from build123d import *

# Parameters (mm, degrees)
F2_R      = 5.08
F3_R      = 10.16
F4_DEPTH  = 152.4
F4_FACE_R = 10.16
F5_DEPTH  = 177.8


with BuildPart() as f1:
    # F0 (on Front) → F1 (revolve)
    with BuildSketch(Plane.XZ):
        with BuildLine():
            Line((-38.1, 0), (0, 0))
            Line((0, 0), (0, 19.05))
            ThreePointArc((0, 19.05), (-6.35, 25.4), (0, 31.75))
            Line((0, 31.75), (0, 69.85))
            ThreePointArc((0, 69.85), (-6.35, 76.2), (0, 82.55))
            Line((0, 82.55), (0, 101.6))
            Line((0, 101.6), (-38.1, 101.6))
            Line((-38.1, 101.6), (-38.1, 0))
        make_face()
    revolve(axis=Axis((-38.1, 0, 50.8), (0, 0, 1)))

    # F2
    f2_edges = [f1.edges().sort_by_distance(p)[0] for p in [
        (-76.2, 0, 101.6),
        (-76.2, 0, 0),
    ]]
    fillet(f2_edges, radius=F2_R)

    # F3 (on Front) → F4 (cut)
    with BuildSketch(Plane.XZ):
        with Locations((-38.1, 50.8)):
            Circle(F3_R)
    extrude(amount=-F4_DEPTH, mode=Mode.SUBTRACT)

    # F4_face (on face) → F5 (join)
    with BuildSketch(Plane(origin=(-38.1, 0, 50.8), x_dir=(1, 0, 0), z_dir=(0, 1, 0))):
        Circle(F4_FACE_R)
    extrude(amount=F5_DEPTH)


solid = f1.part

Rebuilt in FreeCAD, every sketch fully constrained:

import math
import FreeCAD as App
import Part
import Sketcher
from FreeCAD import Vector
Q = App.Units.Quantity


def edges_at(feature, points):
    """Names of the edges that pass closest to the given points."""
    edges = feature.Shape.Edges
    near = lambda p: min(range(len(edges)), key=lambda i: edges[i].distToShape(Part.Vertex(*p))[0])
    return sorted({f"Edge{near(p) + 1}" for p in points})

doc = App.newDocument("Part")
body = doc.addObject("PartDesign::Body", "Body")

sketch1 = doc.addObject("Sketcher::SketchObject", "Sketch")
body.addObject(sketch1)
sketch1.AttachmentSupport = (doc.XZ_Plane, [""])
sketch1.MapMode = "FlatFace"
sketch1.addGeometry(Part.LineSegment(Vector(-38, 0, 0), Vector(0, 0, 0)), False)
sketch1.addGeometry(Part.LineSegment(Vector(0, 0, 0), Vector(0, 19, 0)), False)
sketch1.addGeometry(Part.ArcOfCircle(Part.Circle(Vector(0, 25, 0), Vector(0, 0, 1), 6), math.radians(90), math.radians(270)), False)
sketch1.addGeometry(Part.LineSegment(Vector(0, 32, 0), Vector(0, 70, 0)), False)
sketch1.addGeometry(Part.ArcOfCircle(Part.Circle(Vector(0, 76, 0), Vector(0, 0, 1), 6), math.radians(90), math.radians(270)), False)
sketch1.addGeometry(Part.LineSegment(Vector(0, 83, 0), Vector(0, 102, 0)), False)
sketch1.addGeometry(Part.LineSegment(Vector(0, 102, 0), Vector(-38, 102, 0)), False)
sketch1.addGeometry(Part.LineSegment(Vector(-38, 102, 0), Vector(-38, 0, 0)), False)
sketch1.addGeometry(Part.LineSegment(Vector(-38, 0, 0), Vector(-38, 102, 0)), True)
sketch1.addConstraint(Sketcher.Constraint("Coincident", 0, 2, 1, 1))
sketch1.addConstraint(Sketcher.Constraint("Coincident", 1, 2, 2, 2))
sketch1.addConstraint(Sketcher.Constraint("Coincident", 2, 1, 3, 1))
sketch1.addConstraint(Sketcher.Constraint("Coincident", 3, 2, 4, 2))
sketch1.addConstraint(Sketcher.Constraint("Coincident", 4, 1, 5, 1))
sketch1.addConstraint(Sketcher.Constraint("Coincident", 5, 2, 6, 1))
sketch1.addConstraint(Sketcher.Constraint("Coincident", 6, 2, 7, 1))
sketch1.addConstraint(Sketcher.Constraint("Coincident", 7, 2, 0, 1))
sketch1.addConstraint(Sketcher.Constraint("Horizontal", 0))
sketch1.addConstraint(Sketcher.Constraint("Vertical", 1))
sketch1.addConstraint(Sketcher.Constraint("Vertical", 3))
sketch1.addConstraint(Sketcher.Constraint("Vertical", 5))
sketch1.addConstraint(Sketcher.Constraint("Horizontal", 6))
sketch1.addConstraint(Sketcher.Constraint("Vertical", 7))
sketch1.addConstraint(Sketcher.Constraint("Vertical", 8))
sketch1.addConstraint(Sketcher.Constraint("Coincident", 0, 2, -1, 1))
sketch1.addConstraint(Sketcher.Constraint("Coincident", 8, 1, 7, 2))
sketch1.addConstraint(Sketcher.Constraint("Equal", 2, 4))
sketch1.addConstraint(Sketcher.Constraint("PointOnObject", 2, 3, -2))
sketch1.addConstraint(Sketcher.Constraint("PointOnObject", 4, 3, -2))
sketch1.addConstraint(Sketcher.Constraint("PointOnObject", 2, 1, -2))
sketch1.addConstraint(Sketcher.Constraint("PointOnObject", 4, 1, -2))
sketch1.addConstraint(Sketcher.Constraint("Horizontal", 5, 2, 8, 2))
sketch1.addConstraint(Sketcher.Constraint("Equal", 6, 3))
sketch1.addConstraint(Sketcher.Constraint("Equal", 1, 5))
sketch1.addConstraint(Sketcher.Constraint("DistanceY", 7, 2, 7, 1, Q("4 in")))
sketch1.addConstraint(Sketcher.Constraint("Radius", 2, Q("0.25 in")))
sketch1.addConstraint(Sketcher.Constraint("DistanceX", 0, 1, 0, 2, Q("1.5 in")))
revolution = doc.addObject("PartDesign::Revolution", "Revolution")
body.addObject(revolution)
revolution.Profile = sketch1
revolution.ReferenceAxis = (sketch1, ["Axis0"])
revolution.Angle = 360
doc.recompute()

fillet = doc.addObject("PartDesign::Fillet", "Fillet")
body.addObject(fillet)
fillet.Base = (revolution, edges_at(revolution, [(-76.2, 0, 101.6), (-76.2, 0, 0)]))
fillet.Radius = Q("0.2 in")

sketch2 = doc.addObject("Sketcher::SketchObject", "Sketch001")
body.addObject(sketch2)
sketch2.AttachmentSupport = (doc.XZ_Plane, [""])
sketch2.MapMode = "FlatFace"
sketch2.addGeometry(Part.Circle(Vector(-38, 51, 0), Vector(0, 0, 1), 10), False)
sketch2.addConstraint(Sketcher.Constraint("Diameter", 0, Q("0.8 in")))
sketch2.addConstraint(Sketcher.Constraint("DistanceY", -1, 1, 0, 3, Q("2 in")))
sketch2.addConstraint(Sketcher.Constraint("DistanceX", 0, 3, -1, 1, Q("1.5 in")))
pocket1 = doc.addObject("PartDesign::Pocket", "Pocket")
body.addObject(pocket1)
pocket1.Profile = sketch2
pocket1.Length = Q("6 in")

sketch3 = doc.addObject("Sketcher::SketchObject", "Sketch002")
body.addObject(sketch3)
sketch3.AttachmentSupport = (doc.XZ_Plane, [""])
sketch3.MapMode = "FlatFace"
sketch3.addGeometry(Part.Circle(Vector(-38, 51, 0), Vector(0, 0, 1), 10), False)
sketch3.addConstraint(Sketcher.Constraint("Diameter", 0, Q("0.8 in")))
sketch3.addConstraint(Sketcher.Constraint("DistanceY", -1, 1, 0, 3, Q("2 in")))
sketch3.addConstraint(Sketcher.Constraint("DistanceX", 0, 3, -1, 1, Q("1.5 in")))
pad1 = doc.addObject("PartDesign::Pad", "Pad")
body.addObject(pad1)
pad1.Profile = sketch3
pad1.Length = Q("7 in")
pad1.Reversed = True

doc.recompute()
